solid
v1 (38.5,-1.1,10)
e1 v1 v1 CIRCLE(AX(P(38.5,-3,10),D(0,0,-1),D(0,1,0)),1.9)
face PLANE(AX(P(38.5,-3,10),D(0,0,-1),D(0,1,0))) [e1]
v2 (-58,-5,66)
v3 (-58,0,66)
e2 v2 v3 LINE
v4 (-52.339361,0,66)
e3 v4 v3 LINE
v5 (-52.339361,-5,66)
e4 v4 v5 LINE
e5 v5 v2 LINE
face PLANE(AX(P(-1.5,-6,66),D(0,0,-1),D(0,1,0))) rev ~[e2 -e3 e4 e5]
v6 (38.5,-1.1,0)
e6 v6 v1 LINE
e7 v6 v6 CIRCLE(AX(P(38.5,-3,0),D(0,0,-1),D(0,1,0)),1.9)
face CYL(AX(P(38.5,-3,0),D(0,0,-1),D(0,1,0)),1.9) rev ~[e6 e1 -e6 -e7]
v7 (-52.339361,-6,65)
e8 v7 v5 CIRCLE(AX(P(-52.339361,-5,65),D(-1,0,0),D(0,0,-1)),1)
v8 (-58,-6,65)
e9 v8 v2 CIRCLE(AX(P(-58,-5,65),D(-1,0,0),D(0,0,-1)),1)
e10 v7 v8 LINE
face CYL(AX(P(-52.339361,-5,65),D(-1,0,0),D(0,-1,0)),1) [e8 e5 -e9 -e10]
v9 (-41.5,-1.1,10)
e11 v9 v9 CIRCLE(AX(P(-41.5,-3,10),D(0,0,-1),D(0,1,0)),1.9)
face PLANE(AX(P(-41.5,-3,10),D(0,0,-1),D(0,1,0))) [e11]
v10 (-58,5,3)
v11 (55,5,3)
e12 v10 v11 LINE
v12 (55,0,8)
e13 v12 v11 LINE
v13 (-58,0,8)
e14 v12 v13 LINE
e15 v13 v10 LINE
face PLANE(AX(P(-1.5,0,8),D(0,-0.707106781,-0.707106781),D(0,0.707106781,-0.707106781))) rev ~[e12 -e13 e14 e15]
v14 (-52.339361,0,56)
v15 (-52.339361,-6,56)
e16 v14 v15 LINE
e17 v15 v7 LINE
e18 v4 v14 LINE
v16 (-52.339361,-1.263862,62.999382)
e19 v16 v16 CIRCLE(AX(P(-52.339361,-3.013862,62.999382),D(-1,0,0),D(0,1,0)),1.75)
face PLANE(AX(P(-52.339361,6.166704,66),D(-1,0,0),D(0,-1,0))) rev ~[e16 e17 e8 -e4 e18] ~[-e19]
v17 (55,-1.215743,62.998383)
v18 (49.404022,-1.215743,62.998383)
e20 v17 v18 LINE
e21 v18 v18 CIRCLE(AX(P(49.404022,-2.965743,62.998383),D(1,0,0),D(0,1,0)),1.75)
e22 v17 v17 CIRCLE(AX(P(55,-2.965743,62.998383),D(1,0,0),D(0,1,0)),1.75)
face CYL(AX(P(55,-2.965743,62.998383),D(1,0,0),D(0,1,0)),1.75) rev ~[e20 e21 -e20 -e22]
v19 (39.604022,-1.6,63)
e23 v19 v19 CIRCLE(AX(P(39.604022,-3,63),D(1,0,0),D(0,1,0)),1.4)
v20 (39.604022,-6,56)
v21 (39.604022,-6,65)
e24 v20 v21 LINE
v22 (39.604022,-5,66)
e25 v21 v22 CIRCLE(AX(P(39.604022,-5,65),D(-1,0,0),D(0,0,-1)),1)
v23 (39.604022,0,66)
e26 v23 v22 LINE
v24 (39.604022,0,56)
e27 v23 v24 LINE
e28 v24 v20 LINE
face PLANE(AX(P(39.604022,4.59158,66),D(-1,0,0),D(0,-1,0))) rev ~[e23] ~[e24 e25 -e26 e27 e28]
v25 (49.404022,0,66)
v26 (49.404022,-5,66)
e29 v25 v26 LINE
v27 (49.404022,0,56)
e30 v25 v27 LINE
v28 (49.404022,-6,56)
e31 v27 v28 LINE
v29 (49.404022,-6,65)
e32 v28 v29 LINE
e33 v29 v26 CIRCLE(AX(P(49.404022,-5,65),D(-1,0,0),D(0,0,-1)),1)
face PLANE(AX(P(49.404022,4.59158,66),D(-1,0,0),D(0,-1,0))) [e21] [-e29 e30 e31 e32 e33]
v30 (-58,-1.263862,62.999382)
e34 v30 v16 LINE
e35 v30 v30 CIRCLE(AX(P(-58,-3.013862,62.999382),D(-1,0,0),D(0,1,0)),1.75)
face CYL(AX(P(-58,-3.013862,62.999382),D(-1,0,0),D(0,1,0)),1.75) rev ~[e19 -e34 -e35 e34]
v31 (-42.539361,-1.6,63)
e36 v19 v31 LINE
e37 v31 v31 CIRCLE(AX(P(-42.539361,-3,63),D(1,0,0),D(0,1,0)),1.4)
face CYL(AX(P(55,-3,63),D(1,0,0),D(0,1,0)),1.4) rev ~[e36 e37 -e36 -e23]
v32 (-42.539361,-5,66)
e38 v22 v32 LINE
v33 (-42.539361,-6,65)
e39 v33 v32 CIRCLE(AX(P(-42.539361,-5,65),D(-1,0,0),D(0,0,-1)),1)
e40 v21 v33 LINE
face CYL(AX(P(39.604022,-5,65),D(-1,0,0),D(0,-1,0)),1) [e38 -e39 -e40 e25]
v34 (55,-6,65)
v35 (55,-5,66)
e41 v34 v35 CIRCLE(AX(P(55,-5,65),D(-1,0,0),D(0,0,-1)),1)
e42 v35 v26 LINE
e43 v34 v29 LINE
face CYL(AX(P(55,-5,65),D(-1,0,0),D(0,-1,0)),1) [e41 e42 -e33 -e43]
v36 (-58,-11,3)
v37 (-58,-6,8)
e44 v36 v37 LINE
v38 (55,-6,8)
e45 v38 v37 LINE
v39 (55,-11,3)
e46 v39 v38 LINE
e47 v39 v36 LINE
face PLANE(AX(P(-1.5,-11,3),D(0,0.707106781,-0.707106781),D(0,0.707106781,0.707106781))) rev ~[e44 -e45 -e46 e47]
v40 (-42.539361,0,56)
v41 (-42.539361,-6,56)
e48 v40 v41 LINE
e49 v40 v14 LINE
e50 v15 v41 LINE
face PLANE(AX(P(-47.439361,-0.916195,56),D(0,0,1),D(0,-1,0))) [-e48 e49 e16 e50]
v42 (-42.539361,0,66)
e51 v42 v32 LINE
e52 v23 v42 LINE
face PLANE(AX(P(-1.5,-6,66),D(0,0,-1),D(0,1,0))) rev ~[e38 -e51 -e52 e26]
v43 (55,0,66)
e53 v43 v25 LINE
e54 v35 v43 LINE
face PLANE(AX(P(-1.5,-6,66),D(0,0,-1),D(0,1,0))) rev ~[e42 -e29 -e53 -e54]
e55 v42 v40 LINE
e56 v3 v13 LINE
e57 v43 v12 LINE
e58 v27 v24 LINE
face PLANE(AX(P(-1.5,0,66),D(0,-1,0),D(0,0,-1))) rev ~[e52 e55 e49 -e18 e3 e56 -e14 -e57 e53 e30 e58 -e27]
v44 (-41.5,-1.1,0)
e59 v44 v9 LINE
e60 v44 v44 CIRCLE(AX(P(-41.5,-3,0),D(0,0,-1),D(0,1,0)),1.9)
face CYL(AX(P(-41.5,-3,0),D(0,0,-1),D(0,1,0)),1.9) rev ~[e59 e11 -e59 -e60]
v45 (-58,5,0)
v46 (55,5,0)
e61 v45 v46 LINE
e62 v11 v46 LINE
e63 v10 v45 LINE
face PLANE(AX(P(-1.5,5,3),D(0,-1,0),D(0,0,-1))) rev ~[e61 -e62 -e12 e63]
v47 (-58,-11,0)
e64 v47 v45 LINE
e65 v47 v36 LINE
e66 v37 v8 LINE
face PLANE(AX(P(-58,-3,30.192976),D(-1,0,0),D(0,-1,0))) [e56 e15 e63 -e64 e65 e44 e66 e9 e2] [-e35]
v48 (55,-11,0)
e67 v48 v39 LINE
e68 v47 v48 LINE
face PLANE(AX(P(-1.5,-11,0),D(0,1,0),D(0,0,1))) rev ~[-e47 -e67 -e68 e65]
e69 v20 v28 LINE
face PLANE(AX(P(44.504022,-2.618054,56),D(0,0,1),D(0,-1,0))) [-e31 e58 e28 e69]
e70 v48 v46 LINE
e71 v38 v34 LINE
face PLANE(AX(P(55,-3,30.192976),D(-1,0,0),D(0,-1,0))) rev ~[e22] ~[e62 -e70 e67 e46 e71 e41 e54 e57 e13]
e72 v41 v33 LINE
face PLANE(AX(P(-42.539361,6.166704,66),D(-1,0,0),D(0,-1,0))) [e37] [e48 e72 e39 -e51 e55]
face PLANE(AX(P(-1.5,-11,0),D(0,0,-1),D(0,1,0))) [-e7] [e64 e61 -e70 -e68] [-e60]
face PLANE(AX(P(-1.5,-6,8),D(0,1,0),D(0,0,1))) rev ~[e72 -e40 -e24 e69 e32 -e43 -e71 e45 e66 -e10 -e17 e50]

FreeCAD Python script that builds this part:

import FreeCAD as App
import Part
import Sketcher


def edges_at(feature, points):
    """Names of the edges that pass closest to the given points."""
    edges = feature.Shape.Edges
    near = lambda p: min(range(len(edges)), key=lambda i: edges[i].distToShape(Part.Vertex(*p))[0])
    return sorted({f"Edge{near(p) + 1}" for p in points})

doc = App.newDocument("Part")
params = doc.addObject("Spreadsheet::Sheet", "Params")
for row, (alias, value) in enumerate([
    ("sketch1_width", "16 mm"),
    ("sketch1_width2", "6 mm"),
    ("sketch1_height", "3 mm"),
    ("sketch1_height2", "58 mm"),
    ("pad1_length", "113 mm"),
    ("sketch2_width", "9.8 mm"),
    ("sketch2_width2", "3.2 mm"),
    ("pocket1_length", "10 mm"),
    ("sketch3_diameter", "2.8 mm"),
    ("sketch4_diameter", "3.5 mm"),
    ("pocket3_length", "7 mm"),
    ("sketch5_diameter", "3.5 mm"),
    ("pocket4_length", "7 mm"),
    ("sketch6_diameter", "3.8 mm"),
    ("pocket5_length", "10 mm"),
    ("fillet_radius", "1 mm"),
], start=1):
    params.set(f"A{row}", alias)
    params.set(f"B{row}", "=" + value)
    params.setAlias(f"B{row}", alias)

body = doc.addObject("PartDesign::Body", "Body")

sketch1 = body.newObject("Sketcher::SketchObject", "Sketch")
sketch1.AttachmentSupport = (doc.getObject("YZ_Plane"), [""])
sketch1.MapMode = "FlatFace"
sketch1.addGeometry([
    Part.LineSegment(App.Vector(-11, 3, 0), App.Vector(-11, 0, 0)),
    Part.LineSegment(App.Vector(-11, 0, 0), App.Vector(5, 0, 0)),
    Part.LineSegment(App.Vector(5, 0, 0), App.Vector(5, 3, 0)),
    Part.LineSegment(App.Vector(5, 3, 0), App.Vector(0, 8, 0)),
    Part.LineSegment(App.Vector(0, 8, 0), App.Vector(0, 66, 0)),
    Part.LineSegment(App.Vector(0, 66, 0), App.Vector(-6, 66, 0)),
    Part.LineSegment(App.Vector(-6, 66, 0), App.Vector(-6, 8, 0)),
    Part.LineSegment(App.Vector(-6, 8, 0), App.Vector(-11, 3, 0)),
], False)
sketch1.addConstraint([
    Sketcher.Constraint("Coincident", 0, 2, 1, 1),
    Sketcher.Constraint("Coincident", 1, 2, 2, 1),
    Sketcher.Constraint("Coincident", 2, 2, 3, 1),
    Sketcher.Constraint("Coincident", 3, 2, 4, 1),
    Sketcher.Constraint("Coincident", 4, 2, 5, 1),
    Sketcher.Constraint("Coincident", 5, 2, 6, 1),
    Sketcher.Constraint("Coincident", 6, 2, 7, 1),
    Sketcher.Constraint("Coincident", 7, 2, 0, 1),
    Sketcher.Constraint("Vertical", 0),
    Sketcher.Constraint("Horizontal", 1),
    Sketcher.Constraint("Vertical", 2),
    Sketcher.Constraint("Vertical", 4),
    Sketcher.Constraint("Horizontal", 5),
    Sketcher.Constraint("Vertical", 6),
    Sketcher.Constraint("PointOnObject", 0, 2, -1),
    Sketcher.Constraint("PointOnObject", 3, 2, -2),
    Sketcher.Constraint("Perpendicular", 3, 7),
    Sketcher.Constraint("Horizontal", 3, 2, 6, 2),
    Sketcher.Constraint("Horizontal", 2, 2, 7, 2),
    Sketcher.Constraint("Equal", 3, 7),
    Sketcher.Constraint("DistanceX", 1, 1, 1, 2, 16.0),
    Sketcher.Constraint("DistanceX", 5, 2, 5, 1, 6.0),
    Sketcher.Constraint("DistanceY", 0, 2, 0, 1, 3.0),
    Sketcher.Constraint("DistanceY", 4, 1, 4, 2, 58.0),
])
sketch1.setExpression("Constraints[20]", "Params.sketch1_width")
sketch1.setExpression("Constraints[21]", "Params.sketch1_width2")
sketch1.setExpression("Constraints[22]", "Params.sketch1_height")
sketch1.setExpression("Constraints[23]", "Params.sketch1_height2")
pad1 = body.newObject("PartDesign::Pad", "Pad")
pad1.Profile = sketch1
pad1.setExpression("Length", "Params.pad1_length")
pad1.Midplane = True

sketch2 = body.newObject("Sketcher::SketchObject", "Sketch001")
sketch2.AttachmentSupport = (doc.getObject("XY_Plane"), [""])
sketch2.MapMode = "FlatFace"
sketch2.AttachmentOffset = App.Placement(App.Vector(0, 0, 66), App.Rotation())
sketch2.addGeometry([
    Part.LineSegment(App.Vector(61.5, 3.2, 0), App.Vector(56.6, 3.2, 0)),
    Part.LineSegment(App.Vector(56.6, 3.2, 0), App.Vector(56.6, -6.8, 0)),
    Part.LineSegment(App.Vector(56.6, -6.8, 0), App.Vector(61.5, -6.8, 0)),
    Part.LineSegment(App.Vector(61.5, -6.8, 0), App.Vector(61.5, 3.2, 0)),
    Part.LineSegment(App.Vector(50.9, 4.6, 0), App.Vector(41.1, 4.6, 0)),
    Part.LineSegment(App.Vector(41.1, 4.6, 0), App.Vector(41.1, -9.8, 0)),
    Part.LineSegment(App.Vector(41.1, -9.8, 0), App.Vector(50.9, -9.8, 0)),
    Part.LineSegment(App.Vector(50.9, -9.8, 0), App.Vector(50.9, 4.6, 0)),
    Part.LineSegment(App.Vector(-41, 6.2, 0), App.Vector(-50.8, 6.2, 0)),
    Part.LineSegment(App.Vector(-50.8, 6.2, 0), App.Vector(-50.8, -8, 0)),
    Part.LineSegment(App.Vector(-50.8, -8, 0), App.Vector(-41, -8, 0)),
    Part.LineSegment(App.Vector(-41, -8, 0), App.Vector(-41, 6.2, 0)),
    Part.LineSegment(App.Vector(-56.9, 2.5, 0), App.Vector(-60.1, 2.5, 0)),
    Part.LineSegment(App.Vector(-60.1, 2.5, 0), App.Vector(-60.1, -6.8, 0)),
    Part.LineSegment(App.Vector(-60.1, -6.8, 0), App.Vector(-56.9, -6.8, 0)),
    Part.LineSegment(App.Vector(-56.9, -6.8, 0), App.Vector(-56.9, 2.5, 0)),
], False)
sketch2.addConstraint([
    Sketcher.Constraint("Coincident", 0, 2, 1, 1),
    Sketcher.Constraint("Coincident", 1, 2, 2, 1),
    Sketcher.Constraint("Coincident", 2, 2, 3, 1),
    Sketcher.Constraint("Coincident", 3, 2, 0, 1),
    Sketcher.Constraint("Coincident", 4, 2, 5, 1),
    Sketcher.Constraint("Coincident", 5, 2, 6, 1),
    Sketcher.Constraint("Coincident", 6, 2, 7, 1),
    Sketcher.Constraint("Coincident", 7, 2, 4, 1),
    Sketcher.Constraint("Coincident", 8, 2, 9, 1),
    Sketcher.Constraint("Coincident", 9, 2, 10, 1),
    Sketcher.Constraint("Coincident", 10, 2, 11, 1),
    Sketcher.Constraint("Coincident", 11, 2, 8, 1),
    Sketcher.Constraint("Coincident", 12, 2, 13, 1),
    Sketcher.Constraint("Coincident", 13, 2, 14, 1),
    Sketcher.Constraint("Coincident", 14, 2, 15, 1),
    Sketcher.Constraint("Coincident", 15, 2, 12, 1),
    Sketcher.Constraint("Horizontal", 0),
    Sketcher.Constraint("Vertical", 1),
    Sketcher.Constraint("Horizontal", 2),
    Sketcher.Constraint("Vertical", 3),
    Sketcher.Constraint("Horizontal", 4),
    Sketcher.Constraint("Vertical", 5),
    Sketcher.Constraint("Horizontal", 6),
    Sketcher.Constraint("Vertical", 7),
    Sketcher.Constraint("Horizontal", 8),
    Sketcher.Constraint("Vertical", 9),
    Sketcher.Constraint("Horizontal", 10),
    Sketcher.Constraint("Vertical", 11),
    Sketcher.Constraint("Horizontal", 12),
    Sketcher.Constraint("Vertical", 13),
    Sketcher.Constraint("Horizontal", 14),
    Sketcher.Constraint("Vertical", 15),
    Sketcher.Constraint("Equal", 6, 8),
    Sketcher.Constraint("DistanceX", 4, 2, 4, 1, 9.8),
    Sketcher.Constraint("DistanceX", 12, 2, 12, 1, 3.2),
    Sketcher.Constraint("DistanceY", 9, 2, 9, 1, 14.165799),
    Sketcher.Constraint("DistanceX", 0, 2, 0, 1, 4.853651),
    Sketcher.Constraint("DistanceY", 5, 2, 5, 1, 14.419268),
    Sketcher.Constraint("DistanceY", 1, 2, 1, 1, 9.963656),
    Sketcher.Constraint("DistanceY", 13, 2, 13, 1, 9.249737),
    Sketcher.Constraint("DistanceY", -1, 1, 0, 2, 3.157878),
    Sketcher.Constraint("DistanceY", -1, 1, 4, 2, 4.59158),
    Sketcher.Constraint("DistanceX", -1, 1, 6, 2, 50.904022),
    Sketcher.Constraint("DistanceX", 8, 2, -1, 1, 50.839361),
    Sketcher.Constraint("DistanceY", 13, 2, -1, 1, 6.754312),
    Sketcher.Constraint("DistanceX", 12, 2, 8, 2, 9.276461),
    Sketcher.Constraint("DistanceY", 12, 2, 8, 2, 3.671279),
    Sketcher.Constraint("DistanceX", -1, 1, 0, 2, 56.642474),
])
sketch2.setExpression("Constraints[33]", "Params.sketch2_width")
sketch2.setExpression("Constraints[34]", "Params.sketch2_width2")
pocket1 = body.newObject("PartDesign::Pocket", "Pocket")
pocket1.Profile = sketch2
pocket1.setExpression("Length", "Params.pocket1_length")

sketch3 = body.newObject("Sketcher::SketchObject", "Sketch002")
sketch3.AttachmentSupport = (doc.getObject("YZ_Plane"), [""])
sketch3.MapMode = "FlatFace"
sketch3.AttachmentOffset = App.Placement(App.Vector(0, 0, 56.5), App.Rotation())
sketch3.addGeometry(Part.Circle(App.Vector(-3, 63, 0), App.Vector(0, 0, 1), 1.4), False)
sketch3.addConstraint([
    Sketcher.Constraint("Diameter", 0, 2.8),
    Sketcher.Constraint("DistanceX", 0, 3, -1, 1, 3.0),
    Sketcher.Constraint("DistanceY", -1, 1, 0, 3, 63.0),
])
sketch3.setExpression("Constraints[0]", "Params.sketch3_diameter")
pocket2 = body.newObject("PartDesign::Pocket", "Pocket001")
pocket2.Profile = sketch3
pocket2.Type = "ThroughAll"

sketch4 = body.newObject("Sketcher::SketchObject", "Sketch003")
sketch4.AttachmentSupport = (doc.getObject("YZ_Plane"), [""])
sketch4.MapMode = "FlatFace"
sketch4.AttachmentOffset = App.Placement(App.Vector(0, 0, 56.5), App.Rotation())
sketch4.addGeometry(Part.Circle(App.Vector(-3, 63, 0), App.Vector(0, 0, 1), 1.8), False)
sketch4.addConstraint([
    Sketcher.Constraint("Diameter", 0, 3.5),
    Sketcher.Constraint("DistanceX", 0, 3, -1, 1, 2.965743),
    Sketcher.Constraint("DistanceY", -1, 1, 0, 3, 62.998383),
])
sketch4.setExpression("Constraints[0]", "Params.sketch4_diameter")
pocket3 = body.newObject("PartDesign::Pocket", "Pocket002")
pocket3.Profile = sketch4
pocket3.setExpression("Length", "Params.pocket3_length")

sketch5 = body.newObject("Sketcher::SketchObject", "Sketch004")
sketch5.AttachmentSupport = (doc.getObject("YZ_Plane"), [""])
sketch5.MapMode = "FlatFace"
sketch5.AttachmentOffset = App.Placement(App.Vector(0, 0, -56.5), App.Rotation())
sketch5.addGeometry(Part.Circle(App.Vector(-3, 63, 0), App.Vector(0, 0, 1), 1.8), False)
sketch5.addConstraint([
    Sketcher.Constraint("Diameter", 0, 3.5),
    Sketcher.Constraint("DistanceX", 0, 3, -1, 1, 3.013862),
    Sketcher.Constraint("DistanceY", -1, 1, 0, 3, 62.999382),
])
sketch5.setExpression("Constraints[0]", "Params.sketch5_diameter")
pocket4 = body.newObject("PartDesign::Pocket", "Pocket003")
pocket4.Profile = sketch5
pocket4.setExpression("Length", "Params.pocket4_length")
pocket4.Reversed = True

sketch6 = body.newObject("Sketcher::SketchObject", "Sketch005")
sketch6.AttachmentSupport = (doc.getObject("XY_Plane"), [""])
sketch6.MapMode = "FlatFace"
sketch6.addGeometry([
    Part.Circle(App.Vector(40, -3, 0), App.Vector(0, 0, 1), 1.9),
    Part.Circle(App.Vector(-40, -3, 0), App.Vector(0, 0, 1), 1.9),
], False)
sketch6.addConstraint([
    Sketcher.Constraint("Equal", 0, 1),
    Sketcher.Constraint("Symmetric", 0, 3, 1, 3, -2),
    Sketcher.Constraint("Diameter", 0, 3.8),
    Sketcher.Constraint("DistanceX", -1, 1, 0, 3, 40.0),
    Sketcher.Constraint("DistanceY", 0, 3, -1, 1, 3.0),
])
sketch6.setExpression("Constraints[2]", "Params.sketch6_diameter")
pocket5 = body.newObject("PartDesign::Pocket", "Pocket004")
pocket5.Profile = sketch6
pocket5.setExpression("Length", "Params.pocket5_length")
pocket5.Reversed = True
doc.recompute()

fillet = body.newObject("PartDesign::Fillet", "Fillet")
fillet.Base = (pocket5, edges_at(pocket5, [(0.032, -6, 66), (53.702, -6, 66), (-53.67, -6, 66)]))
fillet.setExpression("Radius", "Params.fillet_radius")
body2 = doc.addObject("PartDesign::Body", "Body001")
doc.recompute()

body.Placement = App.Placement(App.Vector(-1.5, 0, 0), App.Rotation(App.Vector(0, 0, 1), 0))
boolean = body2.newObject("PartDesign::Boolean", "Boolean")
boolean.Type = "Fuse"
boolean.addObjects([body])

doc.recompute()
